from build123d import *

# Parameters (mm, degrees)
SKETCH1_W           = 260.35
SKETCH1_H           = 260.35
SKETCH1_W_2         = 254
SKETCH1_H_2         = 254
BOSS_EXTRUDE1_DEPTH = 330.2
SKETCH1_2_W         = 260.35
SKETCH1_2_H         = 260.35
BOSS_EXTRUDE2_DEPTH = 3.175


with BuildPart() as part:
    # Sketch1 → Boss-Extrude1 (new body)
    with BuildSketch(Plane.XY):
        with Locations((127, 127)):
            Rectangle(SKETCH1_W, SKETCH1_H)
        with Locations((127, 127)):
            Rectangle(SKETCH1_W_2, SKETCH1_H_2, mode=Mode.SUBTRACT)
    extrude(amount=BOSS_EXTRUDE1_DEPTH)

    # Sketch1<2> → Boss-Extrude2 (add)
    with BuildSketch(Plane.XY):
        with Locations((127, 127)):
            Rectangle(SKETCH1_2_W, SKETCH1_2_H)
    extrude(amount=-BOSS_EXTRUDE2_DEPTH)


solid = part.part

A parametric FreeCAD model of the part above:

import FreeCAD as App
import Part
import Sketcher
from FreeCAD import Vector
Q = App.Units.Quantity


def add_polygon(sketch, points):
    """Adds a closed chain of lines whose ends are joined by coincident constraints."""
    first, n = sketch.GeometryCount, len(points)
    for a, b in zip(points, points[1:] + points[:1]):
        sketch.addGeometry(Part.LineSegment(App.Vector(*a, 0), App.Vector(*b, 0)), False)
    for i in range(n):
        sketch.addConstraint(Sketcher.Constraint("Coincident", first + i, 2, first + (i + 1) % n, 1))

doc = App.newDocument("Part")
params = doc.addObject("Spreadsheet::Sheet", "Params")
for row, (alias, value) in enumerate([
    ("sketch1_width", "10 in"),
    ("sketch1_width2", "10.25 in"),
    ("pad1_length", "13 in"),
    ("sketch2_width", "10.25 in"),
    ("pad2_length", "0.125 in"),
], start=1):
    params.set(f"A{row}", alias)
    params.set(f"B{row}", "=" + value)
    params.setAlias(f"B{row}", alias)

body = doc.addObject("PartDesign::Body", "Body")

# Sketch on XY plane
sketch1 = body.newObject("Sketcher::SketchObject", "Sketch")
sketch1.AttachmentSupport = (doc.getObject("XY_Plane"), [""])
sketch1.MapMode = "FlatFace"
add_polygon(sketch1, [(-3.175, 257.175), (-3.175, -3.175), (257.175, -3.175), (257.175, 257.175)])  # lines 0-3
add_polygon(sketch1, [(254, 0), (0, 0), (0, 254), (254, 254)])  # lines 4-7
sketch1.addConstraint([
    Sketcher.Constraint("Vertical", 0),
    Sketcher.Constraint("Horizontal", 1),
    Sketcher.Constraint("Vertical", 2),
    Sketcher.Constraint("Horizontal", 3),
    Sketcher.Constraint("Horizontal", 4),
    Sketcher.Constraint("Vertical", 5),
    Sketcher.Constraint("Horizontal", 6),
    Sketcher.Constraint("Vertical", 7),
    Sketcher.Constraint("Coincident", 4, 2, -1, 1),
    Sketcher.Constraint("Equal", 3, 0),
    Sketcher.Constraint("Equal", 6, 5),
    Sketcher.Constraint("DistanceX", 4, 2, 4, 1, Q("10 in")),
    Sketcher.Constraint("DistanceX", 1, 1, 1, 2, Q("10.25 in")),
    Sketcher.Constraint("DistanceX", 0, 2, -1, 1, Q("0.125 in")),
    Sketcher.Constraint("DistanceY", 0, 2, -1, 1, Q("0.125 in")),
])
sketch1.setExpression("Constraints[19]", "Params.sketch1_width")
sketch1.setExpression("Constraints[20]", "Params.sketch1_width2")
pad1 = body.newObject("PartDesign::Pad", "Pad")
pad1.Profile = sketch1
pad1.setExpression("Length", "Params.pad1_length")

# Sketch on XY plane
sketch2 = body.newObject("Sketcher::SketchObject", "Sketch001")
sketch2.AttachmentSupport = (doc.getObject("XY_Plane"), [""])
sketch2.MapMode = "FlatFace"
add_polygon(sketch2, [(-3.175, 257.175), (-3.175, -3.175), (257.175, -3.175), (257.175, 257.175)])  # lines 0-3
sketch2.addConstraint([
    Sketcher.Constraint("Vertical", 0),
    Sketcher.Constraint("Horizontal", 1),
    Sketcher.Constraint("Vertical", 2),
    Sketcher.Constraint("Horizontal", 3),
    Sketcher.Constraint("Equal", 3, 0),
    Sketcher.Constraint("DistanceX", 1, 1, 1, 2, Q("10.25 in")),
    Sketcher.Constraint("DistanceX", 0, 2, -1, 1, Q("0.125 in")),
    Sketcher.Constraint("DistanceY", 0, 2, -1, 1, Q("0.125 in")),
])
sketch2.setExpression("Constraints[9]", "Params.sketch2_width")
pad2 = body.newObject("PartDesign::Pad", "Pad001")
pad2.Profile = sketch2
pad2.setExpression("Length", "Params.pad2_length")
pad2.Reversed = True

doc.recompute()
